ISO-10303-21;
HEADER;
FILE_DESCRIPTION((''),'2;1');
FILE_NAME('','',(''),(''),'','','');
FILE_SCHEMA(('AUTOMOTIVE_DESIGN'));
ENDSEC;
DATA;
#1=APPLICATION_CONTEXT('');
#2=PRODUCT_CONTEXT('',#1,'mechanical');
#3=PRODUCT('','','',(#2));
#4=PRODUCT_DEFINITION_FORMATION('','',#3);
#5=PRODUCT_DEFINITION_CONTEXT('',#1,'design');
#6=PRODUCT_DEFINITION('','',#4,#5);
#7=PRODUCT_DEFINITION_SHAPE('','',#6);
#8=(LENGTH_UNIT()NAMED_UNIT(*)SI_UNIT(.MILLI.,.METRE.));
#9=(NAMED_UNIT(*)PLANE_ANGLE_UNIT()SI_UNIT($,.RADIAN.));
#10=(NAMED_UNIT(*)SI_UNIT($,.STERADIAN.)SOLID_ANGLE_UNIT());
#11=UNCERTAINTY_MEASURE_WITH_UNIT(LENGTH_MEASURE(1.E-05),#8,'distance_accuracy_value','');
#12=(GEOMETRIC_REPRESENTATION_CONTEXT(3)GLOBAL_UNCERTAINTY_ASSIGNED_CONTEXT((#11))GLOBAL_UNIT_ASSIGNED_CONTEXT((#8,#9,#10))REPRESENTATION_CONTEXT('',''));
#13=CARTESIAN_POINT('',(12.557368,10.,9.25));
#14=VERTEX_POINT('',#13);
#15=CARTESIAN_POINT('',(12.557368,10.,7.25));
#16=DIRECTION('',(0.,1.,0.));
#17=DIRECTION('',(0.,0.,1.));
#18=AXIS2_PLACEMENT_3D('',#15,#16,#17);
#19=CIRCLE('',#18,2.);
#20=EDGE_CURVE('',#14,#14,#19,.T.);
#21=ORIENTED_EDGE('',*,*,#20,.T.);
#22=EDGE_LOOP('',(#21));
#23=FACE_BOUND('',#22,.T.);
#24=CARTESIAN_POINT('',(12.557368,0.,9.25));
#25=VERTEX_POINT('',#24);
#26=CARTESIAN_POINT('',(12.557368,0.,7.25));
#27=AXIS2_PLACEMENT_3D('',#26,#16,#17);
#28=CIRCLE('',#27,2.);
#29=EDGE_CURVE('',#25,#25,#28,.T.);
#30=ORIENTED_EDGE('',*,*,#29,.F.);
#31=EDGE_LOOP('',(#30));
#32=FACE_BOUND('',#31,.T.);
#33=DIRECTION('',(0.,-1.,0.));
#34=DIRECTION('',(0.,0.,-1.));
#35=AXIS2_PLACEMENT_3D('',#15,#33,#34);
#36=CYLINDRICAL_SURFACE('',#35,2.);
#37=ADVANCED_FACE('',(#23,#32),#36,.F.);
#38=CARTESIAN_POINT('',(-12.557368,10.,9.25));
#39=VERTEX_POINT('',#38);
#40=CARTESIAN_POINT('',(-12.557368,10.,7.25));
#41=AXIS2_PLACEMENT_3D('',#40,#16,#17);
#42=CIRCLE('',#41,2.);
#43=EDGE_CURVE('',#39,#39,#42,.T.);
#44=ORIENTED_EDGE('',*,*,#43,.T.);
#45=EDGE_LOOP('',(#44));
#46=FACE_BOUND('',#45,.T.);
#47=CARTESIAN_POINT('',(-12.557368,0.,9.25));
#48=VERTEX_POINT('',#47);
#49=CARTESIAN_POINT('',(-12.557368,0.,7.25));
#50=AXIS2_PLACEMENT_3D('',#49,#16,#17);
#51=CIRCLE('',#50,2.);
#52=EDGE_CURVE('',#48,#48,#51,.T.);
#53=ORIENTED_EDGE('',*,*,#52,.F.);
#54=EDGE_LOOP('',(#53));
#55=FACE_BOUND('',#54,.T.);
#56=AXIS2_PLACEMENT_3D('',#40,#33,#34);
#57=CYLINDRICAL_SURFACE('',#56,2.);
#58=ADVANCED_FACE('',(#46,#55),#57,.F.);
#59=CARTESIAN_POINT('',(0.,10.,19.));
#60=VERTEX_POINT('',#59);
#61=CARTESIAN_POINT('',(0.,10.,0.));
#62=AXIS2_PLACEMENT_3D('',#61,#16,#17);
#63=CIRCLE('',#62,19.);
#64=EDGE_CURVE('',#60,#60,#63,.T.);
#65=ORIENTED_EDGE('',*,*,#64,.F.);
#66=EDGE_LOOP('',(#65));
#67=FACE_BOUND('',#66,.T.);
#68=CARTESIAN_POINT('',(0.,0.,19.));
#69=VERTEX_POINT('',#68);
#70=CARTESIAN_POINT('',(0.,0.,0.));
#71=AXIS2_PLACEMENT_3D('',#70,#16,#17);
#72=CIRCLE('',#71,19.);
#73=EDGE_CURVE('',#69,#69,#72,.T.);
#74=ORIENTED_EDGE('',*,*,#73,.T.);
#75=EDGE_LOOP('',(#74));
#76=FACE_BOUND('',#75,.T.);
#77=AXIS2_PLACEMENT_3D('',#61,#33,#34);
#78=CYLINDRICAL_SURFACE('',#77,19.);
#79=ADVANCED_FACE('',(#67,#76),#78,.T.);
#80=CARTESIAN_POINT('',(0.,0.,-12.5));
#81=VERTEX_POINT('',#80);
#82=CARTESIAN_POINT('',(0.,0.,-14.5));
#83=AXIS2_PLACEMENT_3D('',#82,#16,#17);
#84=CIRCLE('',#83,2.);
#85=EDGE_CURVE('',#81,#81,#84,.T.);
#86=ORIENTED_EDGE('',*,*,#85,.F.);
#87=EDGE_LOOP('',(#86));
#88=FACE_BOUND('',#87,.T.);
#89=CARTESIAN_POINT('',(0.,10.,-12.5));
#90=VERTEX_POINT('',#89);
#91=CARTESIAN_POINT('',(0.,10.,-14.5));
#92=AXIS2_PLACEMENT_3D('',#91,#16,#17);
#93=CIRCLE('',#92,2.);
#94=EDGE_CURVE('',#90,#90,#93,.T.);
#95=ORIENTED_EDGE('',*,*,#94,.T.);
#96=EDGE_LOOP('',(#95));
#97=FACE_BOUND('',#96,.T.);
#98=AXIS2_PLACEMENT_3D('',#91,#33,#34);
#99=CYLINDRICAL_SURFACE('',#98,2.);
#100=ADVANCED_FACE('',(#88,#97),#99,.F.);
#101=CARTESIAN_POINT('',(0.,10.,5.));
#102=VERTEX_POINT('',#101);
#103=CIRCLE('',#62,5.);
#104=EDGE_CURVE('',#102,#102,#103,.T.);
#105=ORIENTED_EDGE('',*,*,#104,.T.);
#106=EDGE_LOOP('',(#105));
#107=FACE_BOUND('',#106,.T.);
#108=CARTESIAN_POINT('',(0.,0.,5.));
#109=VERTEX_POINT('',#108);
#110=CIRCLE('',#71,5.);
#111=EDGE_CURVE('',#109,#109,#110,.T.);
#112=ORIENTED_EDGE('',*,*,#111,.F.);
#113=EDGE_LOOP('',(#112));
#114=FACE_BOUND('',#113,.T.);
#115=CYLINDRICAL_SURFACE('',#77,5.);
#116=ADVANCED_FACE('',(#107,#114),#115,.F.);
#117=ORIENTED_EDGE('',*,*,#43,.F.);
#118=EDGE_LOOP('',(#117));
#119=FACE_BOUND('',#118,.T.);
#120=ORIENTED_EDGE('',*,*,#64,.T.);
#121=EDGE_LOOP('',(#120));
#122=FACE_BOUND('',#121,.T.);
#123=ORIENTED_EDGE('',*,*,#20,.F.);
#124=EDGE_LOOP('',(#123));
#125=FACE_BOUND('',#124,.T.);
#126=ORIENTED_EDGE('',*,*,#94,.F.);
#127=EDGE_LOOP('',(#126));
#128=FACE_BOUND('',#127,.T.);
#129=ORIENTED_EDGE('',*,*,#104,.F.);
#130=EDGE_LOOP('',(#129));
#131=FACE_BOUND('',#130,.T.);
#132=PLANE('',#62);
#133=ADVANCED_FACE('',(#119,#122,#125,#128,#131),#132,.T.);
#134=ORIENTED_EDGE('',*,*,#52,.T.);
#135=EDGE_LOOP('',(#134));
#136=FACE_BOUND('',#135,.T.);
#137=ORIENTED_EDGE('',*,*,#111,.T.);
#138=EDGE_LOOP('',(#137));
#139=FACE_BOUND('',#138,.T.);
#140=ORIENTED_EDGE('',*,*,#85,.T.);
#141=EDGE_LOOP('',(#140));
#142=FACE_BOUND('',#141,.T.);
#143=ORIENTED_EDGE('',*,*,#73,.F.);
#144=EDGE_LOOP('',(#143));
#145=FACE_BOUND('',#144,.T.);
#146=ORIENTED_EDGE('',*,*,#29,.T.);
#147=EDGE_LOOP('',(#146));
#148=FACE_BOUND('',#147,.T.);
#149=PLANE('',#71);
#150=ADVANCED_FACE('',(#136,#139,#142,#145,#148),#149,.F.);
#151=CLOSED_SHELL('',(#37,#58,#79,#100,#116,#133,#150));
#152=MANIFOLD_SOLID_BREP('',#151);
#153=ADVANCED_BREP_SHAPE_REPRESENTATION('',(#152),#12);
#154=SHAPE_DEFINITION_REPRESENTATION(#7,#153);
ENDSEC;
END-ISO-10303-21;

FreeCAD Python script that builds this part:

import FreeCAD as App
import Part
import Sketcher

V = App.Vector

doc = App.newDocument("Part")
body = doc.addObject("PartDesign::Body", "Body")

sketch1 = body.newObject("Sketcher::SketchObject", "Sketch")
sketch1.AttachmentSupport = (doc.getObject("XZ_Plane"), [""])
sketch1.MapMode = "FlatFace"
sketch1.addGeometry(Part.Circle(V(0, 0, 0), V(0, 0, 1), 19), False)
sketch1.addGeometry(Part.Circle(V(-12.6, 7.2, 0), V(0, 0, 1), 2), False)
sketch1.addGeometry(Part.Circle(V(12.6, 7.2, 0), V(0, 0, 1), 2), False)
sketch1.addGeometry(Part.Circle(V(0, 0, 0), V(0, 0, 1), 5), False)
sketch1.addGeometry(Part.Circle(V(0, -14.5, 0), V(0, 0, 1), 2), False)
sketch1.addConstraint(Sketcher.Constraint("Coincident", 0, 3, -1, 1))
sketch1.addConstraint(Sketcher.Constraint("Coincident", 3, 3, -1, 1))
sketch1.addConstraint(Sketcher.Constraint("Equal", 1, 2))
sketch1.addConstraint(Sketcher.Constraint("Equal", 2, 4))
sketch1.addConstraint(Sketcher.Constraint("Symmetric", 1, 3, 2, 3, -2))
sketch1.addConstraint(Sketcher.Constraint("PointOnObject", 4, 3, -2))
sketch1.addConstraint(Sketcher.Constraint("Diameter", 0, 38.0))
sketch1.addConstraint(Sketcher.Constraint("Diameter", 1, 4.0))
sketch1.addConstraint(Sketcher.Constraint("Diameter", 3, 10.0))
sketch1.addConstraint(Sketcher.Constraint("DistanceY", 4, 3, -1, 1, 14.5))
sketch1.addConstraint(Sketcher.Constraint("DistanceY", -1, 1, 1, 3, 7.25))
sketch1.addConstraint(Sketcher.Constraint("DistanceX", 1, 3, -1, 1, 12.557368))
pad1 = body.newObject("PartDesign::Pad", "Pad")
pad1.Profile = sketch1
pad1.Length = 10
pad1.Reversed = True

doc.recompute()
